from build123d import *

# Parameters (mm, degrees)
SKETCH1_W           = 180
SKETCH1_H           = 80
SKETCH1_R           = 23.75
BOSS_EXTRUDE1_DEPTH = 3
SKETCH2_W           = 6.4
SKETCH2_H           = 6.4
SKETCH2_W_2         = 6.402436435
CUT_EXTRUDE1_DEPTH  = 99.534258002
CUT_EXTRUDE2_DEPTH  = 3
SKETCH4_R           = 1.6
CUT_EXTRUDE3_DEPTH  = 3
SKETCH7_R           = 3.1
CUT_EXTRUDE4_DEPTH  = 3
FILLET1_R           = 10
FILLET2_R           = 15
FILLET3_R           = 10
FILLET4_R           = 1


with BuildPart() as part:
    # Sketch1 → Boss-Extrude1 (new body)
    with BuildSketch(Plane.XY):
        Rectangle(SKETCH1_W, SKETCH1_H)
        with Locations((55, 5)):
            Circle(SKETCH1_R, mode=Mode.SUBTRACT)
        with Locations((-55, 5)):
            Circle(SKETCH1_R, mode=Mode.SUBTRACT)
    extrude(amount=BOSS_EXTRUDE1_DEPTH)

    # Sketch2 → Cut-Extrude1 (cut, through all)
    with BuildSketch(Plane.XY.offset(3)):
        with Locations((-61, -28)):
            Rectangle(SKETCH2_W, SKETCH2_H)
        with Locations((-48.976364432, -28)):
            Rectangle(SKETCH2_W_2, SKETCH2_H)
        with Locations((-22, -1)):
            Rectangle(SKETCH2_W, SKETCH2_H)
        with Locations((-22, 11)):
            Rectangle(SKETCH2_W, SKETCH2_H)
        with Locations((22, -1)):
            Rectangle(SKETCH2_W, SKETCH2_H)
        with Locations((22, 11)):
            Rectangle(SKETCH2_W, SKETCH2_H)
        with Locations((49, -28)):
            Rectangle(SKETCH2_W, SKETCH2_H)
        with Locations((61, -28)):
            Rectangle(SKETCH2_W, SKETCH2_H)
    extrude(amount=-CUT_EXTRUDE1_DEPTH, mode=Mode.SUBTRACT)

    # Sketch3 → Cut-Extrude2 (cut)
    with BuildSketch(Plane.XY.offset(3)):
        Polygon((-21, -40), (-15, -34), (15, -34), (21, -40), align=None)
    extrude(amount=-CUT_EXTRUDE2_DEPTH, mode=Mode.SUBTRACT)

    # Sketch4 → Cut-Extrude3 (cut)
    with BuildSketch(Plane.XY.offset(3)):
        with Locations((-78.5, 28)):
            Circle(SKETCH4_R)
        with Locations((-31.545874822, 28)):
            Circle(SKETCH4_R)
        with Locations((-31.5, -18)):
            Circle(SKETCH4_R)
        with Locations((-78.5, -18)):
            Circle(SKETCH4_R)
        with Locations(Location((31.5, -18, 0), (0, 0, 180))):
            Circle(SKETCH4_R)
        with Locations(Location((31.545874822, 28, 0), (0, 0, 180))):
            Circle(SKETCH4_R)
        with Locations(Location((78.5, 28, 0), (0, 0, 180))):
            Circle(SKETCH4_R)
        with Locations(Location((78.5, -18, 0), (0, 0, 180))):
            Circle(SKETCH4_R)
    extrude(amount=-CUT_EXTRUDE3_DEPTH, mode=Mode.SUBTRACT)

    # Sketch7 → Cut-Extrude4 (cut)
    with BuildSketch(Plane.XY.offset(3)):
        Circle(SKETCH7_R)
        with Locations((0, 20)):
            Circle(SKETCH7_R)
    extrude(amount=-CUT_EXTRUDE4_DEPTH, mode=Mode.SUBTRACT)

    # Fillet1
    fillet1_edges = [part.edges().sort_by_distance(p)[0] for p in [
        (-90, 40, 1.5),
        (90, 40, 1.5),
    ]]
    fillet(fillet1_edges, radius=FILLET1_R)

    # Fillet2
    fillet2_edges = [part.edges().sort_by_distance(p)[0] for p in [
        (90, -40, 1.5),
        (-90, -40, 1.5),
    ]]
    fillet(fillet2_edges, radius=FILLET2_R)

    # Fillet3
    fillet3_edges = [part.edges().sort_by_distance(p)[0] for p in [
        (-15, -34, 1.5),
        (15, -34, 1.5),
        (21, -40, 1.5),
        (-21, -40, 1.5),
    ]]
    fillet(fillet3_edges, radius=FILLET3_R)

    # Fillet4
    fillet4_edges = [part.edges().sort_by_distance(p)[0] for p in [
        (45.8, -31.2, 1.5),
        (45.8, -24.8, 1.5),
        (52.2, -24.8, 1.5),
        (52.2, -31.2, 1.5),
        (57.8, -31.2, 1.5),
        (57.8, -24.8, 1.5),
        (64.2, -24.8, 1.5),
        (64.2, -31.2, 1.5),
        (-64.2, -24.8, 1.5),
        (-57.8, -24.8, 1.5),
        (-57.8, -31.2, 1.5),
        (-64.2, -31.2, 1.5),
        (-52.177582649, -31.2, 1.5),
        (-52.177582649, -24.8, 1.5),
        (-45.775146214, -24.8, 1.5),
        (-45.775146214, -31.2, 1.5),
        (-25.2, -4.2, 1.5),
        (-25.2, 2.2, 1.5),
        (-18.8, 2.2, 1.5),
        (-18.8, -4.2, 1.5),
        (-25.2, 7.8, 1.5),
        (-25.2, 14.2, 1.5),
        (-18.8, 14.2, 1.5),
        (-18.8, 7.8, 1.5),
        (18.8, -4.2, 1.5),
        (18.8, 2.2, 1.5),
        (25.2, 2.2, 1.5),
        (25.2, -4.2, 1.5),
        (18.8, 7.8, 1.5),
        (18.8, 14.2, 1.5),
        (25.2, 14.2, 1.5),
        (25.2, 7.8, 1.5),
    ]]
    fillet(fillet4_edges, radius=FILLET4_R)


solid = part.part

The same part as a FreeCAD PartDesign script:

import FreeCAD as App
import Part
import Sketcher
from FreeCAD import Vector


def edges_at(feature, points):
    """Names of the edges that pass closest to the given points."""
    edges = feature.Shape.Edges
    near = lambda p: min(range(len(edges)), key=lambda i: edges[i].distToShape(Part.Vertex(*p))[0])
    return sorted({f"Edge{near(p) + 1}" for p in points})

doc = App.newDocument("Part")
body = doc.addObject("PartDesign::Body", "Body")

sketch1 = body.newObject("Sketcher::SketchObject", "Sketch")
sketch1.AttachmentSupport = (doc.getObject("XY_Plane"), [""])
sketch1.MapMode = "FlatFace"
sketch1.addGeometry([
    Part.LineSegment(Vector(-90, 40, 0), Vector(-90, -40, 0)),
    Part.LineSegment(Vector(-90, -40, 0), Vector(90, -40, 0)),
    Part.LineSegment(Vector(90, -40, 0), Vector(90, 40, 0)),
    Part.LineSegment(Vector(90, 40, 0), Vector(-90, 40, 0)),
    Part.Circle(Vector(-55, 5, 0), Vector(0, 0, 1), 24),
    Part.Circle(Vector(55, 5, 0), Vector(0, 0, 1), 24),
], False)
sketch1.addConstraint([
    Sketcher.Constraint("Coincident", 0, 2, 1, 1),
    Sketcher.Constraint("Coincident", 1, 2, 2, 1),
    Sketcher.Constraint("Coincident", 2, 2, 3, 1),
    Sketcher.Constraint("Coincident", 3, 2, 0, 1),
    Sketcher.Constraint("Vertical", 0),
    Sketcher.Constraint("Horizontal", 1),
    Sketcher.Constraint("Vertical", 2),
    Sketcher.Constraint("Horizontal", 3),
    Sketcher.Constraint("Equal", 4, 5),
    Sketcher.Constraint("Symmetric", 0, 2, 2, 2, -1, 1),
    Sketcher.Constraint("Symmetric", 4, 3, 5, 3, -2),
    Sketcher.Constraint("Diameter", 4, 47.5),
    Sketcher.Constraint("DistanceX", 1, 1, 1, 2, 180.0),
    Sketcher.Constraint("DistanceY", 0, 2, 0, 1, 80.0),
    Sketcher.Constraint("DistanceX", 4, 3, -1, 1, 55.0),
    Sketcher.Constraint("DistanceY", -1, 1, 4, 3, 5.0),
])
pad1 = body.newObject("PartDesign::Pad", "Pad")
pad1.Profile = sketch1
pad1.Length = 3

sketch2 = body.newObject("Sketcher::SketchObject", "Sketch001")
sketch2.AttachmentSupport = (doc.getObject("XY_Plane"), [""])
sketch2.MapMode = "FlatFace"
sketch2.AttachmentOffset = App.Placement(Vector(0, 0, 3), App.Rotation())
sketch2.addGeometry([
    Part.LineSegment(Vector(-64, -25, 0), Vector(-64, -31, 0)),
    Part.LineSegment(Vector(-64, -31, 0), Vector(-58, -31, 0)),
    Part.LineSegment(Vector(-58, -31, 0), Vector(-58, -25, 0)),
    Part.LineSegment(Vector(-58, -25, 0), Vector(-64, -25, 0)),
    Part.LineSegment(Vector(-52, -25, 0), Vector(-52, -31, 0)),
    Part.LineSegment(Vector(-52, -31, 0), Vector(-46, -31, 0)),
    Part.LineSegment(Vector(-46, -31, 0), Vector(-46, -25, 0)),
    Part.LineSegment(Vector(-46, -25, 0), Vector(-52, -25, 0)),
    Part.LineSegment(Vector(-25, 2, 0), Vector(-25, -4, 0)),
    Part.LineSegment(Vector(-25, -4, 0), Vector(-19, -4, 0)),
    Part.LineSegment(Vector(-19, -4, 0), Vector(-19, 2, 0)),
    Part.LineSegment(Vector(-19, 2, 0), Vector(-25, 2, 0)),
    Part.LineSegment(Vector(-25, 14, 0), Vector(-25, 8, 0)),
    Part.LineSegment(Vector(-25, 8, 0), Vector(-19, 8, 0)),
    Part.LineSegment(Vector(-19, 8, 0), Vector(-19, 14, 0)),
    Part.LineSegment(Vector(-19, 14, 0), Vector(-25, 14, 0)),
    Part.LineSegment(Vector(19, 2, 0), Vector(19, -4, 0)),
    Part.LineSegment(Vector(19, -4, 0), Vector(25, -4, 0)),
    Part.LineSegment(Vector(25, -4, 0), Vector(25, 2, 0)),
    Part.LineSegment(Vector(25, 2, 0), Vector(19, 2, 0)),
    Part.LineSegment(Vector(19, 14, 0), Vector(19, 8, 0)),
    Part.LineSegment(Vector(19, 8, 0), Vector(25, 8, 0)),
    Part.LineSegment(Vector(25, 8, 0), Vector(25, 14, 0)),
    Part.LineSegment(Vector(25, 14, 0), Vector(19, 14, 0)),
    Part.LineSegment(Vector(46, -25, 0), Vector(46, -31, 0)),
    Part.LineSegment(Vector(46, -31, 0), Vector(52, -31, 0)),
    Part.LineSegment(Vector(52, -31, 0), Vector(52, -25, 0)),
    Part.LineSegment(Vector(52, -25, 0), Vector(46, -25, 0)),
    Part.LineSegment(Vector(58, -25, 0), Vector(58, -31, 0)),
    Part.LineSegment(Vector(58, -31, 0), Vector(64, -31, 0)),
    Part.LineSegment(Vector(64, -31, 0), Vector(64, -25, 0)),
    Part.LineSegment(Vector(64, -25, 0), Vector(58, -25, 0)),
], False)
sketch2.addConstraint([
    Sketcher.Constraint("Coincident", 0, 2, 1, 1),
    Sketcher.Constraint("Coincident", 1, 2, 2, 1),
    Sketcher.Constraint("Coincident", 2, 2, 3, 1),
    Sketcher.Constraint("Coincident", 3, 2, 0, 1),
    Sketcher.Constraint("Coincident", 4, 2, 5, 1),
    Sketcher.Constraint("Coincident", 5, 2, 6, 1),
    Sketcher.Constraint("Coincident", 6, 2, 7, 1),
    Sketcher.Constraint("Coincident", 7, 2, 4, 1),
    Sketcher.Constraint("Coincident", 8, 2, 9, 1),
    Sketcher.Constraint("Coincident", 9, 2, 10, 1),
    Sketcher.Constraint("Coincident", 10, 2, 11, 1),
    Sketcher.Constraint("Coincident", 11, 2, 8, 1),
    Sketcher.Constraint("Coincident", 12, 2, 13, 1),
    Sketcher.Constraint("Coincident", 13, 2, 14, 1),
    Sketcher.Constraint("Coincident", 14, 2, 15, 1),
    Sketcher.Constraint("Coincident", 15, 2, 12, 1),
    Sketcher.Constraint("Coincident", 16, 2, 17, 1),
    Sketcher.Constraint("Coincident", 17, 2, 18, 1),
    Sketcher.Constraint("Coincident", 18, 2, 19, 1),
    Sketcher.Constraint("Coincident", 19, 2, 16, 1),
    Sketcher.Constraint("Coincident", 20, 2, 21, 1),
    Sketcher.Constraint("Coincident", 21, 2, 22, 1),
    Sketcher.Constraint("Coincident", 22, 2, 23, 1),
    Sketcher.Constraint("Coincident", 23, 2, 20, 1),
    Sketcher.Constraint("Coincident", 24, 2, 25, 1),
    Sketcher.Constraint("Coincident", 25, 2, 26, 1),
    Sketcher.Constraint("Coincident", 26, 2, 27, 1),
    Sketcher.Constraint("Coincident", 27, 2, 24, 1),
    Sketcher.Constraint("Coincident", 28, 2, 29, 1),
    Sketcher.Constraint("Coincident", 29, 2, 30, 1),
    Sketcher.Constraint("Coincident", 30, 2, 31, 1),
    Sketcher.Constraint("Coincident", 31, 2, 28, 1),
    Sketcher.Constraint("Vertical", 0),
    Sketcher.Constraint("Horizontal", 1),
    Sketcher.Constraint("Vertical", 2),
    Sketcher.Constraint("Horizontal", 3),
    Sketcher.Constraint("Vertical", 4),
    Sketcher.Constraint("Horizontal", 5),
    Sketcher.Constraint("Vertical", 6),
    Sketcher.Constraint("Horizontal", 7),
    Sketcher.Constraint("Vertical", 8),
    Sketcher.Constraint("Horizontal", 9),
    Sketcher.Constraint("Vertical", 10),
    Sketcher.Constraint("Horizontal", 11),
    Sketcher.Constraint("Vertical", 12),
    Sketcher.Constraint("Horizontal", 13),
    Sketcher.Constraint("Vertical", 14),
    Sketcher.Constraint("Horizontal", 15),
    Sketcher.Constraint("Vertical", 16),
    Sketcher.Constraint("Horizontal", 17),
    Sketcher.Constraint("Vertical", 18),
    Sketcher.Constraint("Horizontal", 19),
    Sketcher.Constraint("Vertical", 20),
    Sketcher.Constraint("Horizontal", 21),
    Sketcher.Constraint("Vertical", 22),
    Sketcher.Constraint("Horizontal", 23),
    Sketcher.Constraint("Vertical", 24),
    Sketcher.Constraint("Horizontal", 25),
    Sketcher.Constraint("Vertical", 26),
    Sketcher.Constraint("Horizontal", 27),
    Sketcher.Constraint("Vertical", 28),
    Sketcher.Constraint("Horizontal", 29),
    Sketcher.Constraint("Vertical", 30),
    Sketcher.Constraint("Horizontal", 31),
    Sketcher.Constraint("Symmetric", 9, 2, 16, 2, -2),
    Sketcher.Constraint("Symmetric", 11, 2, 18, 2, -2),
    Sketcher.Constraint("Symmetric", 13, 2, 20, 2, -2),
    Sketcher.Constraint("Symmetric", 15, 2, 22, 2, -2),
    Sketcher.Constraint("Symmetric", 1, 2, 28, 2, -2),
    Sketcher.Constraint("Symmetric", 3, 2, 30, 2, -2),
    Sketcher.Constraint("Horizontal", 1, 2, 4, 2),
    Sketcher.Constraint("Horizontal", 3, 2, 6, 2),
    Sketcher.Constraint("Horizontal", 5, 2, 24, 2),
    Sketcher.Constraint("Horizontal", 7, 2, 26, 2),
    Sketcher.Constraint("Vertical", 11, 2, 12, 2),
    Sketcher.Constraint("Vertical", 10, 2, 13, 2),
    Sketcher.Constraint("Equal", 3, 9),
    Sketcher.Constraint("Equal", 23, 25),
    Sketcher.Constraint("Equal", 31, 0),
    Sketcher.Constraint("Equal", 6, 8),
    Sketcher.Constraint("Equal", 10, 12),
    Sketcher.Constraint("DistanceX", 1, 1, 1, 2, 6.4),
    Sketcher.Constraint("DistanceY", 5, 2, 8, 2, 27.0),
    Sketcher.Constraint("DistanceY", 8, 2, 12, 2, 12.0),
    Sketcher.Constraint("DistanceX", 8, 2, 16, 2, 44.0),
    Sketcher.Constraint("DistanceX", 16, 2, 24, 2, 27.0),
    Sketcher.Constraint("DistanceX", 24, 2, 28, 2, 12.0),
    Sketcher.Constraint("DistanceY", 0, 2, -1, 1, 31.2),
    Sketcher.Constraint("DistanceX", 5, 1, 5, 2, 6.402436),
    Sketcher.Constraint("DistanceX", 4, 2, -1, 1, 52.177583),
])
pocket1 = body.newObject("PartDesign::Pocket", "Pocket")
pocket1.Profile = sketch2
pocket1.Type = "ThroughAll"

sketch3 = body.newObject("Sketcher::SketchObject", "Sketch002")
sketch3.AttachmentSupport = (doc.getObject("XY_Plane"), [""])
sketch3.MapMode = "FlatFace"
sketch3.AttachmentOffset = App.Placement(Vector(0, 0, 3), App.Rotation())
sketch3.addGeometry([
    Part.LineSegment(Vector(-15, -34, 0), Vector(-21, -40, 0)),
    Part.LineSegment(Vector(-21, -40, 0), Vector(21, -40, 0)),
    Part.LineSegment(Vector(21, -40, 0), Vector(15, -34, 0)),
    Part.LineSegment(Vector(15, -34, 0), Vector(-15, -34, 0)),
], False)
sketch3.addConstraint([
    Sketcher.Constraint("Coincident", 0, 2, 1, 1),
    Sketcher.Constraint("Coincident", 1, 2, 2, 1),
    Sketcher.Constraint("Coincident", 2, 2, 3, 1),
    Sketcher.Constraint("Coincident", 3, 2, 0, 1),
    Sketcher.Constraint("Horizontal", 1),
    Sketcher.Constraint("Horizontal", 3),
    Sketcher.Constraint("Perpendicular", 0, 2),
    Sketcher.Constraint("Equal", 0, 2),
    Sketcher.Constraint("DistanceX", 1, 1, 1, 2, 42.0),
    Sketcher.Constraint("DistanceX", 3, 2, 3, 1, 30.0),
    Sketcher.Constraint("DistanceX", 0, 2, -1, 1, 21.0),
    Sketcher.Constraint("DistanceY", 0, 2, -1, 1, 40.0),
])
pocket2 = body.newObject("PartDesign::Pocket", "Pocket001")
pocket2.Profile = sketch3
pocket2.Length = 3

sketch4 = body.newObject("Sketcher::SketchObject", "Sketch003")
sketch4.AttachmentSupport = (doc.getObject("XY_Plane"), [""])
sketch4.MapMode = "FlatFace"
sketch4.AttachmentOffset = App.Placement(Vector(0, 0, 3), App.Rotation())
sketch4.addGeometry([
    Part.Circle(Vector(-78.5, 28, 0), Vector(0, 0, 1), 1.6),
    Part.Circle(Vector(-31.5, 28, 0), Vector(0, 0, 1), 1.6),
    Part.Circle(Vector(-31.5, -18, 0), Vector(0, 0, 1), 1.6),
    Part.Circle(Vector(-78.5, -18, 0), Vector(0, 0, 1), 1.6),
    Part.Circle(Vector(31.5, -18, 0), Vector(0, 0, 1), 1.6),
    Part.Circle(Vector(31.5, 28, 0), Vector(0, 0, 1), 1.6),
    Part.Circle(Vector(78.5, 28, 0), Vector(0, 0, 1), 1.6),
    Part.Circle(Vector(78.5, -18, 0), Vector(0, 0, 1), 1.6),
], False)
sketch4.addConstraint([
    Sketcher.Constraint("Equal", 0, 1),
    Sketcher.Constraint("Equal", 1, 2),
    Sketcher.Constraint("Equal", 2, 3),
    Sketcher.Constraint("Equal", 3, 4),
    Sketcher.Constraint("Equal", 4, 5),
    Sketcher.Constraint("Equal", 5, 6),
    Sketcher.Constraint("Equal", 6, 7),
    Sketcher.Constraint("Symmetric", 2, 3, 4, 3, -2),
    Sketcher.Constraint("Symmetric", 1, 3, 5, 3, -2),
    Sketcher.Constraint("Symmetric", 0, 3, 6, 3, -2),
    Sketcher.Constraint("Symmetric", 3, 3, 7, 3, -2),
    Sketcher.Constraint("Horizontal", 0, 3, 1, 3),
    Sketcher.Constraint("Horizontal", 2, 3, 3, 3),
    Sketcher.Constraint("Vertical", 0, 3, 3, 3),
    Sketcher.Constraint("Diameter", 0, 3.2),
    Sketcher.Constraint("DistanceY", -1, 1, 0, 3, 28.0),
    Sketcher.Constraint("DistanceY", 2, 3, -1, 1, 18.0),
    Sketcher.Constraint("DistanceX", 0, 3, 2, 3, 47.0),
    Sketcher.Constraint("DistanceX", 2, 3, 4, 3, 63.0),
    Sketcher.Constraint("DistanceX", 1, 3, 5, 3, 63.09175),
])
pocket3 = body.newObject("PartDesign::Pocket", "Pocket002")
pocket3.Profile = sketch4
pocket3.Length = 3

sketch5 = body.newObject("Sketcher::SketchObject", "Sketch004")
sketch5.AttachmentSupport = (doc.getObject("XY_Plane"), [""])
sketch5.MapMode = "FlatFace"
sketch5.AttachmentOffset = App.Placement(Vector(0, 0, 3), App.Rotation())
sketch5.addGeometry([
    Part.Circle(Vector(0, 0, 0), Vector(0, 0, 1), 3.1),
    Part.Circle(Vector(0, 20, 0), Vector(0, 0, 1), 3.1),
], False)
sketch5.addConstraint([
    Sketcher.Constraint("Coincident", 0, 3, -1, 1),
    Sketcher.Constraint("Equal", 0, 1),
    Sketcher.Constraint("PointOnObject", 1, 3, -2),
    Sketcher.Constraint("Diameter", 0, 6.2),
    Sketcher.Constraint("DistanceY", -1, 1, 1, 3, 20.0),
])
pocket4 = body.newObject("PartDesign::Pocket", "Pocket003")
pocket4.Profile = sketch5
pocket4.Length = 3
doc.recompute()

fillet = body.newObject("PartDesign::Fillet", "Fillet")
fillet.Base = (pocket4, edges_at(pocket4, [(-90, 40, 1.5), (90, 40, 1.5)]))
fillet.Radius = 10
doc.recompute()

fillet2 = body.newObject("PartDesign::Fillet", "Fillet001")
fillet2.Base = (fillet, edges_at(fillet, [(90, -40, 1.5), (-90, -40, 1.5)]))
fillet2.Radius = 15
doc.recompute()

fillet3 = body.newObject("PartDesign::Fillet", "Fillet002")
fillet3.Base = (fillet2, edges_at(fillet2, [
    (-15, -34, 1.5),
    (15, -34, 1.5),
    (21, -40, 1.5),
    (-21, -40, 1.5),
]))
fillet3.Radius = 10
doc.recompute()

fillet4 = body.newObject("PartDesign::Fillet", "Fillet003")
fillet4.Base = (fillet3, edges_at(fillet3, [
    (45.8, -31.2, 1.5),
    (45.8, -24.8, 1.5),
    (52.2, -24.8, 1.5),
    (52.2, -31.2, 1.5),
    (57.8, -31.2, 1.5),
    (57.8, -24.8, 1.5),
    (64.2, -24.8, 1.5),
    (64.2, -31.2, 1.5),
    (-64.2, -24.8, 1.5),
    (-57.8, -24.8, 1.5),
    (-57.8, -31.2, 1.5),
    (-64.2, -31.2, 1.5),
    (-52.178, -31.2, 1.5),
    (-52.178, -24.8, 1.5),
    (-45.775, -24.8, 1.5),
    (-45.775, -31.2, 1.5),
    (-25.2, -4.2, 1.5),
    (-25.2, 2.2, 1.5),
    (-18.8, 2.2, 1.5),
    (-18.8, -4.2, 1.5),
    (-25.2, 7.8, 1.5),
    (-25.2, 14.2, 1.5),
    (-18.8, 14.2, 1.5),
    (-18.8, 7.8, 1.5),
    (18.8, -4.2, 1.5),
    (18.8, 2.2, 1.5),
    (25.2, 2.2, 1.5),
    (25.2, -4.2, 1.5),
    (18.8, 7.8, 1.5),
    (18.8, 14.2, 1.5),
    (25.2, 14.2, 1.5),
    (25.2, 7.8, 1.5),
]))
fillet4.Radius = 1

doc.recompute()
